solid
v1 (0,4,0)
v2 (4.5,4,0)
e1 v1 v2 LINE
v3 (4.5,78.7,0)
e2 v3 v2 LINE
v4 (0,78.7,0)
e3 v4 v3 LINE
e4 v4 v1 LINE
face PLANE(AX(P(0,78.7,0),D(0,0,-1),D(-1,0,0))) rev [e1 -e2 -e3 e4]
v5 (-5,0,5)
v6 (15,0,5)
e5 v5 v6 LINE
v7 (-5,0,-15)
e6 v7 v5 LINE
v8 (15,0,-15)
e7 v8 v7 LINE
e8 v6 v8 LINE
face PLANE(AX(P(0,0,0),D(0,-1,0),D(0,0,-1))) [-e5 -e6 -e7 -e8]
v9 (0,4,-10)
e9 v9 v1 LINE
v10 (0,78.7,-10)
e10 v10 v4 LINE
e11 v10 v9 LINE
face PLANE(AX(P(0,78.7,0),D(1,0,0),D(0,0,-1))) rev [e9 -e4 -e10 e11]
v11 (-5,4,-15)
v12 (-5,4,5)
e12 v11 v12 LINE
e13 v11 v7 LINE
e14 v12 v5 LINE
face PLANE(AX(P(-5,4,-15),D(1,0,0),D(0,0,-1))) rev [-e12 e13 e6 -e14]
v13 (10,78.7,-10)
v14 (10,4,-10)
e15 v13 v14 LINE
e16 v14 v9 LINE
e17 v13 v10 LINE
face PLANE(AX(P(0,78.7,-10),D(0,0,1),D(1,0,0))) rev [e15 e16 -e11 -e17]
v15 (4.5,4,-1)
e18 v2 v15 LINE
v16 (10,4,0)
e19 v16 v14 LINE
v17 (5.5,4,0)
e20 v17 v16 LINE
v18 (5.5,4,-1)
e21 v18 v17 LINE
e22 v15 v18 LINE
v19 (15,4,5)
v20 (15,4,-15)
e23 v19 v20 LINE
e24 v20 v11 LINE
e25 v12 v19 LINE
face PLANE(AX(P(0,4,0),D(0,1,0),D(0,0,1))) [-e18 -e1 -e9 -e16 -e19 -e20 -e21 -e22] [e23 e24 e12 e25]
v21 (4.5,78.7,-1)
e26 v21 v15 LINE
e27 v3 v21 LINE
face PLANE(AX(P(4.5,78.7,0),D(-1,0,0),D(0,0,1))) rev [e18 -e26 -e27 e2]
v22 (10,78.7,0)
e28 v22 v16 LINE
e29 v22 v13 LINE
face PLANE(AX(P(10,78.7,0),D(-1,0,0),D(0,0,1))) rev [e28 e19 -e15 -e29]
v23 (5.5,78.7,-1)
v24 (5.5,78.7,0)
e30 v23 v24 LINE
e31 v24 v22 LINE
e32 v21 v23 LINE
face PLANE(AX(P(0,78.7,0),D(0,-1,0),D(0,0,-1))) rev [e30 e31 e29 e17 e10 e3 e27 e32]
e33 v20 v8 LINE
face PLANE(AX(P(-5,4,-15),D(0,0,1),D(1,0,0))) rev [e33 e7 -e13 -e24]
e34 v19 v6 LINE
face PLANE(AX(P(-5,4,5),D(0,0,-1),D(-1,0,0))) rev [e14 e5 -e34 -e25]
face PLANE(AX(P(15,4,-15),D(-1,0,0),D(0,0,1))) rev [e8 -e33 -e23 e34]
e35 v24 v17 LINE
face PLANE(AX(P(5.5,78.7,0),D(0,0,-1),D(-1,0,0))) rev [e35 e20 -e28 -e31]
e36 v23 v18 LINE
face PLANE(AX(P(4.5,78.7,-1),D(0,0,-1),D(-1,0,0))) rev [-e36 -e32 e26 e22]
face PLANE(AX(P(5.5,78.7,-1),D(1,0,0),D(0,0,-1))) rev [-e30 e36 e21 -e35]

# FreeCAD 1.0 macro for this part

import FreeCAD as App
import Part
import Sketcher


def add_polygon(sketch, points):
    """Adds a closed chain of lines whose ends are joined by coincident constraints."""
    first, n = sketch.GeometryCount, len(points)
    for a, b in zip(points, points[1:] + points[:1]):
        sketch.addGeometry(Part.LineSegment(App.Vector(*a, 0), App.Vector(*b, 0)), False)
    for i in range(n):
        sketch.addConstraint(Sketcher.Constraint("Coincident", first + i, 2, first + (i + 1) % n, 1))

doc = App.newDocument("Part")
body = doc.addObject("PartDesign::Body", "Body")

# Sketch on XZ plane
sketch1 = doc.addObject("Sketcher::SketchObject", "Sketch")
body.addObject(sketch1)
sketch1.AttachmentSupport = (doc.XZ_Plane, [""])
sketch1.MapMode = "FlatFace"
add_polygon(sketch1, [(4.5, 0), (4.5, -1), (5.5, -1), (5.5, 0), (10, 0), (10, -10), (0, -10), (0, 0)])  # lines 0-7
sketch1.addConstraint([
    Sketcher.Constraint("Vertical", 0),
    Sketcher.Constraint("Horizontal", 1),
    Sketcher.Constraint("Vertical", 2),
    Sketcher.Constraint("Horizontal", 3),
    Sketcher.Constraint("Vertical", 4),
    Sketcher.Constraint("Horizontal", 5),
    Sketcher.Constraint("Vertical", 6),
    Sketcher.Constraint("Horizontal", 7),
    Sketcher.Constraint("Coincident", 6, 2, -1, 1),
    Sketcher.Constraint("PointOnObject", 2, 2, -1),
    Sketcher.Constraint("Equal", 3, 7),
    Sketcher.Constraint("Equal", 1, 0),
    Sketcher.Constraint("Equal", 5, 4),
    Sketcher.Constraint("DistanceX", 1, 1, 1, 2, 1.0),
    Sketcher.Constraint("DistanceX", 5, 2, 5, 1, 10.0),
])
pad1 = doc.addObject("PartDesign::Pad", "Pad")
body.addObject(pad1)
pad1.Profile = sketch1
pad1.Length = 78.7
pad1.Reversed = True

# Sketch on XZ plane
sketch2 = doc.addObject("Sketcher::SketchObject", "Sketch001")
body.addObject(sketch2)
sketch2.AttachmentSupport = (doc.XZ_Plane, [""])
sketch2.MapMode = "FlatFace"
add_polygon(sketch2, [(-5, -15), (-5, 5), (15, 5), (15, -15)])  # lines 0-3
sketch2.addConstraint([
    Sketcher.Constraint("Vertical", 0),
    Sketcher.Constraint("Horizontal", 1),
    Sketcher.Constraint("Vertical", 2),
    Sketcher.Constraint("Horizontal", 3),
    Sketcher.Constraint("Equal", 3, 0),
    Sketcher.Constraint("DistanceX", 1, 1, 1, 2, 20.0),
    Sketcher.Constraint("DistanceX", 0, 2, -1, 1, 5.0),
    Sketcher.Constraint("DistanceY", -1, 1, 0, 2, 5.0),
])
pad2 = doc.addObject("PartDesign::Pad", "Pad001")
body.addObject(pad2)
pad2.Profile = sketch2
pad2.Length = 4
pad2.Reversed = True

doc.recompute()
